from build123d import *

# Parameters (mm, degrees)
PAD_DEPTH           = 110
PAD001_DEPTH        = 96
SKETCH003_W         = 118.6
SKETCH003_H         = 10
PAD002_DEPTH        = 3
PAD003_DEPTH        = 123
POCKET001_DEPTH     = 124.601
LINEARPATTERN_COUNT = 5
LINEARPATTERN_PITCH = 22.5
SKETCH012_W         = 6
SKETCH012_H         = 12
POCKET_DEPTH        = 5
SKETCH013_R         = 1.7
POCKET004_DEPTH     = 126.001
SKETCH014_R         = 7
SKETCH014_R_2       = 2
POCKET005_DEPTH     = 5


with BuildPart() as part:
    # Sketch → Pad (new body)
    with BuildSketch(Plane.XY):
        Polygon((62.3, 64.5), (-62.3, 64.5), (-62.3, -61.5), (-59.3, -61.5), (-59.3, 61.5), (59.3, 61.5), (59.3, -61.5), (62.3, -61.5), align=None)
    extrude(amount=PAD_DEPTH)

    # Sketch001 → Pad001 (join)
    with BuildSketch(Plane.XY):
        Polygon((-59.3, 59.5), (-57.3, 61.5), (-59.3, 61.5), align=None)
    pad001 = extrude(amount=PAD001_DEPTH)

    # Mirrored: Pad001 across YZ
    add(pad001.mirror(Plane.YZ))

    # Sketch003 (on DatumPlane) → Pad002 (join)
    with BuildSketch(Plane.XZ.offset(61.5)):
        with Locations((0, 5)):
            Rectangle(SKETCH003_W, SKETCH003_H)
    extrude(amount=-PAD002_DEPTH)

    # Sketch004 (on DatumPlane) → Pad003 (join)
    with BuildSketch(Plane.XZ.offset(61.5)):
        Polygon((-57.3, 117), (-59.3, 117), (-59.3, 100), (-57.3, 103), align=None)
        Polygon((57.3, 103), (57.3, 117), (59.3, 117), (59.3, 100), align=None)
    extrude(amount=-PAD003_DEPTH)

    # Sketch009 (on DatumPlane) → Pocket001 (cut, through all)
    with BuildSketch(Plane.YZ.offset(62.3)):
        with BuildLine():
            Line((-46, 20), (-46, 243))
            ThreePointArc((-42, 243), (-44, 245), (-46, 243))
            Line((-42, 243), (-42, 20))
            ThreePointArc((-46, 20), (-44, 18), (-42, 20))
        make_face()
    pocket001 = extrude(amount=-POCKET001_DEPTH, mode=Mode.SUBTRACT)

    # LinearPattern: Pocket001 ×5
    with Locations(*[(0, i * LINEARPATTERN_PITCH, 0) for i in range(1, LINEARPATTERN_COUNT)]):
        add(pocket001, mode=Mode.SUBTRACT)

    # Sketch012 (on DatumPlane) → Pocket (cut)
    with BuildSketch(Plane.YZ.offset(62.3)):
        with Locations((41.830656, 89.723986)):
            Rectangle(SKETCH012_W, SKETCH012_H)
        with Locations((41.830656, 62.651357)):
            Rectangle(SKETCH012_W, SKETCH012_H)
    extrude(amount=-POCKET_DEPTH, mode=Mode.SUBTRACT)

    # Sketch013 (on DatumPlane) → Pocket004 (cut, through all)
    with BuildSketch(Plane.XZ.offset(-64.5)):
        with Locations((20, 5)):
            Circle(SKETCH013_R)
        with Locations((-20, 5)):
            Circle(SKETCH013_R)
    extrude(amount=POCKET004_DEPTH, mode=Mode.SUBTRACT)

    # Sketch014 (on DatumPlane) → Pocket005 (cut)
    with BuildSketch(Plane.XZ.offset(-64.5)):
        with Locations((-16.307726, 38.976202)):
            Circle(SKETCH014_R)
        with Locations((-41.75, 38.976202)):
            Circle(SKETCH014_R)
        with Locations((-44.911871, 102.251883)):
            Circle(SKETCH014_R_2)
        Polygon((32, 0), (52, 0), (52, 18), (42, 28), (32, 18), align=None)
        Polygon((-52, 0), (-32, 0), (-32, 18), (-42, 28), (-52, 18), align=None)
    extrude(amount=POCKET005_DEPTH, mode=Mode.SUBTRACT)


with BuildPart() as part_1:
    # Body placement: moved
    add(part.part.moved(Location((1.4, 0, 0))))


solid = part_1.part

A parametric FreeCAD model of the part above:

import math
import FreeCAD as App
import Part
import Sketcher
Q = App.Units.Quantity


def add_polygon(sketch, points):
    """Adds a closed chain of lines whose ends are joined by coincident constraints."""
    first, n = sketch.GeometryCount, len(points)
    for a, b in zip(points, points[1:] + points[:1]):
        sketch.addGeometry(Part.LineSegment(App.Vector(*a, 0), App.Vector(*b, 0)), False)
    for i in range(n):
        sketch.addConstraint(Sketcher.Constraint("Coincident", first + i, 2, first + (i + 1) % n, 1))

doc = App.newDocument("Part")
body = doc.addObject("PartDesign::Body", "Body")

# Sketch on XY plane
sketch1 = doc.addObject("Sketcher::SketchObject", "Sketch")
body.addObject(sketch1)
sketch1.AttachmentSupport = (doc.XY_Plane, [""])
sketch1.MapMode = "FlatFace"
add_polygon(sketch1, [(62.3, 64.5), (-62.3, 64.5), (-62.3, -61.5), (-59.3, -61.5), (-59.3, 61.5), (59.3, 61.5), (59.3, -61.5), (62.3, -61.5)])  # lines 0-7
sketch1.addConstraint([
    Sketcher.Constraint("Horizontal", 0),
    Sketcher.Constraint("Vertical", 1),
    Sketcher.Constraint("Horizontal", 2),
    Sketcher.Constraint("Vertical", 3),
    Sketcher.Constraint("Horizontal", 4),
    Sketcher.Constraint("Vertical", 5),
    Sketcher.Constraint("Horizontal", 6),
    Sketcher.Constraint("Vertical", 7),
    Sketcher.Constraint("Symmetric", 2, 2, 4, 2, -1, 1),
    Sketcher.Constraint("Symmetric", 1, 2, 6, 2, -2),
    Sketcher.Constraint("DistanceX", 2, 1, 2, 2, Q("3 mm")),
    Sketcher.Constraint("DistanceY", 1, 2, 1, 1, Q("126 mm")),
    Sketcher.Constraint("DistanceY", 3, 1, 3, 2, Q("123 mm")),
    Sketcher.Constraint("DistanceX", 0, 2, 0, 1, Q("124.6 mm")),
])
pad1 = doc.addObject("PartDesign::Pad", "Pad")
body.addObject(pad1)
pad1.Profile = sketch1
pad1.Length = 110

# Sketch on XY plane
sketch2 = doc.addObject("Sketcher::SketchObject", "Sketch001")
body.addObject(sketch2)
sketch2.AttachmentSupport = (doc.XY_Plane, [""])
sketch2.MapMode = "FlatFace"
add_polygon(sketch2, [(-59.3, 59.5), (-57.3, 61.5), (-59.3, 61.5)])  # lines 0-2
sketch2.addConstraint([
    Sketcher.Constraint("Horizontal", 1),
    Sketcher.Constraint("Vertical", 2),
    Sketcher.Constraint("Equal", 1, 2),
    Sketcher.Constraint("DistanceX", 1, 2, 1, 1, Q("2 mm")),
    Sketcher.Constraint("DistanceX", 0, 2, -1, 1, Q("57.3 mm")),
    Sketcher.Constraint("DistanceY", -1, 1, 0, 2, Q("61.5 mm")),
])
pad2 = doc.addObject("PartDesign::Pad", "Pad001")
body.addObject(pad2)
pad2.Profile = sketch2
pad2.Length = 96
doc.recompute()

mirrored = doc.addObject("PartDesign::Mirrored", "Mirrored")
body.addObject(mirrored)
mirrored.Originals = [pad2]
mirrored.MirrorPlane = (doc.YZ_Plane, [""])
body.Tip = mirrored

# Sketch on XZ plane
sketch3 = doc.addObject("Sketcher::SketchObject", "Sketch002")
body.addObject(sketch3)
sketch3.AttachmentSupport = (doc.XZ_Plane, [""])
sketch3.MapMode = "FlatFace"
sketch3.AttachmentOffset = App.Placement(App.Vector(0, 0, 61.5), App.Rotation())
add_polygon(sketch3, [(-59, 10), (-59, 0), (59, 0), (59, 10)])  # lines 0-3
sketch3.addConstraint([
    Sketcher.Constraint("Vertical", 0),
    Sketcher.Constraint("Horizontal", 1),
    Sketcher.Constraint("Vertical", 2),
    Sketcher.Constraint("Horizontal", 3),
    Sketcher.Constraint("Symmetric", 0, 2, 1, 2, -1, 1),
    Sketcher.Constraint("DistanceY", 0, 2, 0, 1, Q("10 mm")),
    Sketcher.Constraint("DistanceX", 1, 1, 1, 2, Q("118.6 mm")),
])
pad3 = doc.addObject("PartDesign::Pad", "Pad002")
body.addObject(pad3)
pad3.Profile = sketch3
pad3.Length = 3
pad3.Reversed = True

# Sketch on XZ plane
sketch4 = doc.addObject("Sketcher::SketchObject", "Sketch003")
body.addObject(sketch4)
sketch4.AttachmentSupport = (doc.XZ_Plane, [""])
sketch4.MapMode = "FlatFace"
sketch4.AttachmentOffset = App.Placement(App.Vector(0, 0, 61.5), App.Rotation())
add_polygon(sketch4, [(-57.3, 117), (-59.3, 117), (-59.3, 100), (-57.3, 103)])  # lines 0-3
add_polygon(sketch4, [(57.3, 117), (57.3, 103), (59.3, 100), (59.3, 117)])  # lines 4-7
sketch4.addConstraint([
    Sketcher.Constraint("Horizontal", 0),
    Sketcher.Constraint("Vertical", 1),
    Sketcher.Constraint("Vertical", 3),
    Sketcher.Constraint("Vertical", 4),
    Sketcher.Constraint("Vertical", 6),
    Sketcher.Constraint("Horizontal", 7),
    Sketcher.Constraint("Symmetric", 2, 2, 4, 2, -2),
    Sketcher.Constraint("Symmetric", 1, 2, 5, 2, -2),
    Sketcher.Constraint("Horizontal", 3, 2, 6, 2),
    Sketcher.Constraint("DistanceX", 0, 2, 0, 1, Q("2 mm")),
    Sketcher.Constraint("DistanceY", 1, 2, 1, 1, Q("17 mm")),
    Sketcher.Constraint("DistanceY", 3, 1, 3, 2, Q("14 mm")),
    Sketcher.Constraint("DistanceY", -1, 1, 0, 2, Q("117 mm")),
    Sketcher.Constraint("DistanceX", 0, 2, -1, 1, Q("59.3 mm")),
])
pad4 = doc.addObject("PartDesign::Pad", "Pad003")
body.addObject(pad4)
pad4.Profile = sketch4
pad4.Length = 123
pad4.Reversed = True

# Sketch on YZ plane
sketch5 = doc.addObject("Sketcher::SketchObject", "Sketch004")
body.addObject(sketch5)
sketch5.AttachmentSupport = (doc.YZ_Plane, [""])
sketch5.MapMode = "FlatFace"
sketch5.AttachmentOffset = App.Placement(App.Vector(0, 0, 62.3), App.Rotation())
sketch5.addGeometry([
    Part.LineSegment(App.Vector(-46, 243, 0), App.Vector(-46, 20, 0)),
    Part.ArcOfCircle(Part.Circle(App.Vector(-44, 20, 0), App.Vector(0, 0, 1), 2), math.radians(180), math.radians(360)),
    Part.LineSegment(App.Vector(-42, 20, 0), App.Vector(-42, 243, 0)),
    Part.ArcOfCircle(Part.Circle(App.Vector(-44, 243, 0), App.Vector(0, 0, 1), 2), math.radians(0), math.radians(180)),
], False)
sketch5.addConstraint([
    Sketcher.Constraint("Tangent", 0, 2, 1, 1),
    Sketcher.Constraint("Tangent", 1, 2, 2, 1),
    Sketcher.Constraint("Tangent", 2, 2, 3, 1),
    Sketcher.Constraint("Tangent", 3, 2, 0, 1),
    Sketcher.Constraint("Vertical", 0),
    Sketcher.Constraint("Vertical", 2),
    Sketcher.Constraint("Radius", 1, Q("2 mm")),
    Sketcher.Constraint("DistanceY", 0, 2, 0, 1, Q("223 mm")),
    Sketcher.Constraint("DistanceX", 1, 3, -1, 1, Q("44 mm")),
    Sketcher.Constraint("DistanceY", -1, 1, 1, 3, Q("20 mm")),
])
pocket1 = doc.addObject("PartDesign::Pocket", "Pocket")
body.addObject(pocket1)
pocket1.Profile = sketch5
pocket1.Type = "ThroughAll"
doc.recompute()

linearpattern = doc.addObject("PartDesign::LinearPattern", "LinearPattern")
body.addObject(linearpattern)
linearpattern.Originals = [pocket1]
linearpattern.Direction = (doc.Y_Axis, [""])
linearpattern.Mode = "offset"
linearpattern.Offset = 22.5
linearpattern.Occurrences = 5
body.Tip = linearpattern

# Sketch on YZ plane
sketch6 = doc.addObject("Sketcher::SketchObject", "Sketch005")
body.addObject(sketch6)
sketch6.AttachmentSupport = (doc.YZ_Plane, [""])
sketch6.MapMode = "FlatFace"
sketch6.AttachmentOffset = App.Placement(App.Vector(0, 0, 62.3), App.Rotation())
add_polygon(sketch6, [(39, 96), (39, 84), (45, 84), (45, 96)])  # lines 0-3
add_polygon(sketch6, [(39, 69), (39, 57), (45, 57), (45, 69)])  # lines 4-7
sketch6.addConstraint([
    Sketcher.Constraint("Vertical", 0),
    Sketcher.Constraint("Horizontal", 1),
    Sketcher.Constraint("Vertical", 2),
    Sketcher.Constraint("Horizontal", 3),
    Sketcher.Constraint("Vertical", 4),
    Sketcher.Constraint("Horizontal", 5),
    Sketcher.Constraint("Vertical", 6),
    Sketcher.Constraint("Horizontal", 7),
    Sketcher.Constraint("Vertical", 3, 2, 4, 2),
    Sketcher.Constraint("Vertical", 2, 2, 5, 2),
    Sketcher.Constraint("Equal", 2, 4),
    Sketcher.Constraint("DistanceX", 1, 1, 1, 2, Q("6 mm")),
    Sketcher.Constraint("DistanceY", 0, 2, 0, 1, Q("12 mm")),
    Sketcher.Constraint("DistanceY", 4, 2, 0, 2, Q("27.072629 mm")),
    Sketcher.Constraint("DistanceX", -1, 1, 0, 2, Q("38.830656 mm")),
    Sketcher.Constraint("DistanceY", -1, 1, 0, 2, Q("83.723986 mm")),
])
pocket2 = doc.addObject("PartDesign::Pocket", "Pocket001")
body.addObject(pocket2)
pocket2.Profile = sketch6
pocket2.Length = 5

# Sketch on XZ plane
sketch7 = doc.addObject("Sketcher::SketchObject", "Sketch006")
body.addObject(sketch7)
sketch7.AttachmentSupport = (doc.XZ_Plane, [""])
sketch7.MapMode = "FlatFace"
sketch7.AttachmentOffset = App.Placement(App.Vector(0, 0, -64.5), App.Rotation())
sketch7.addGeometry([
    Part.Circle(App.Vector(20, 5, 0), App.Vector(0, 0, 1), 1.7),
    Part.Circle(App.Vector(-20, 5, 0), App.Vector(0, 0, 1), 1.7),
], False)
sketch7.addConstraint([
    Sketcher.Constraint("Equal", 0, 1),
    Sketcher.Constraint("Symmetric", 0, 3, 1, 3, -2),
    Sketcher.Constraint("Diameter", 0, Q("3.4 mm")),
    Sketcher.Constraint("DistanceX", -1, 1, 0, 3, Q("20 mm")),
    Sketcher.Constraint("DistanceY", -1, 1, 0, 3, Q("5 mm")),
])
pocket3 = doc.addObject("PartDesign::Pocket", "Pocket002")
body.addObject(pocket3)
pocket3.Profile = sketch7
pocket3.Type = "ThroughAll"
pocket3.Reversed = True

# Sketch on XZ plane
sketch8 = doc.addObject("Sketcher::SketchObject", "Sketch007")
body.addObject(sketch8)
sketch8.AttachmentSupport = (doc.XZ_Plane, [""])
sketch8.MapMode = "FlatFace"
sketch8.AttachmentOffset = App.Placement(App.Vector(0, 0, -64.5), App.Rotation())
sketch8.addGeometry(Part.Circle(App.Vector(-16.3, 39, 0), App.Vector(0, 0, 1), 7), False)  # 0
sketch8.addGeometry(Part.Circle(App.Vector(-41.8, 39, 0), App.Vector(0, 0, 1), 7), False)  # 1
sketch8.addGeometry(Part.Circle(App.Vector(-44.9, 102.3, 0), App.Vector(0, 0, 1), 2), False)  # 2
add_polygon(sketch8, [(32, 0), (52, 0), (52, 18), (42, 28), (32, 18)])  # lines 3-7
add_polygon(sketch8, [(-52, 0), (-32, 0), (-32, 18), (-42, 28), (-52, 18)])  # lines 8-12
sketch8.addConstraint([
    Sketcher.Constraint("Horizontal", 3),
    Sketcher.Constraint("Vertical", 4),
    Sketcher.Constraint("Vertical", 7),
    Sketcher.Constraint("Horizontal", 8),
    Sketcher.Constraint("Vertical", 9),
    Sketcher.Constraint("Vertical", 12),
    Sketcher.Constraint("Equal", 0, 1),
    Sketcher.Constraint("Symmetric", 7, 2, 8, 2, -1, 1),
    Sketcher.Constraint("Symmetric", 5, 2, 10, 2, -2),
    Sketcher.Constraint("Symmetric", 4, 2, 11, 2, -2),
    Sketcher.Constraint("PointOnObject", 3, 2, -1),
    Sketcher.Constraint("Perpendicular", 5, 6),
    Sketcher.Constraint("Perpendicular", 6, 10),
    Sketcher.Constraint("Perpendicular", 10, 11),
    Sketcher.Constraint("Horizontal", 0, 3, 1, 3),
    Sketcher.Constraint("Horizontal", 4, 2, 6, 2),
    Sketcher.Constraint("Diameter", 0, Q("14 mm")),
    Sketcher.Constraint("Diameter", 2, Q("4 mm")),
    Sketcher.Constraint("DistanceX", 3, 1, 3, 2, Q("20 mm")),
    Sketcher.Constraint("DistanceY", 4, 1, 4, 2, Q("18 mm")),
    Sketcher.Constraint("DistanceX", -1, 1, 3, 2, Q("52 mm")),
    Sketcher.Constraint("DistanceX", 1, 3, -1, 1, Q("41.75 mm")),
    Sketcher.Constraint("DistanceX", 2, 3, -1, 1, Q("44.911871 mm")),
    Sketcher.Constraint("DistanceY", 1, 3, 2, 3, Q("63.275681 mm")),
    Sketcher.Constraint("DistanceX", 0, 3, -1, 1, Q("16.307726 mm")),
    Sketcher.Constraint("DistanceY", -1, 1, 0, 3, Q("38.976202 mm")),
])
pocket4 = doc.addObject("PartDesign::Pocket", "Pocket003")
body.addObject(pocket4)
pocket4.Profile = sketch8
pocket4.Length = 5
pocket4.Reversed = True
body2 = doc.addObject("PartDesign::Body", "Body001")
doc.recompute()

body.Placement = App.Placement(App.Vector(1.4, 0, 0), App.Rotation(App.Vector(0, 0, 1), 0))
boolean = doc.addObject("PartDesign::Boolean", "Boolean")
body2.addObject(boolean)
boolean.Type = "Fuse"
boolean.addObjects([body])

doc.recompute()
